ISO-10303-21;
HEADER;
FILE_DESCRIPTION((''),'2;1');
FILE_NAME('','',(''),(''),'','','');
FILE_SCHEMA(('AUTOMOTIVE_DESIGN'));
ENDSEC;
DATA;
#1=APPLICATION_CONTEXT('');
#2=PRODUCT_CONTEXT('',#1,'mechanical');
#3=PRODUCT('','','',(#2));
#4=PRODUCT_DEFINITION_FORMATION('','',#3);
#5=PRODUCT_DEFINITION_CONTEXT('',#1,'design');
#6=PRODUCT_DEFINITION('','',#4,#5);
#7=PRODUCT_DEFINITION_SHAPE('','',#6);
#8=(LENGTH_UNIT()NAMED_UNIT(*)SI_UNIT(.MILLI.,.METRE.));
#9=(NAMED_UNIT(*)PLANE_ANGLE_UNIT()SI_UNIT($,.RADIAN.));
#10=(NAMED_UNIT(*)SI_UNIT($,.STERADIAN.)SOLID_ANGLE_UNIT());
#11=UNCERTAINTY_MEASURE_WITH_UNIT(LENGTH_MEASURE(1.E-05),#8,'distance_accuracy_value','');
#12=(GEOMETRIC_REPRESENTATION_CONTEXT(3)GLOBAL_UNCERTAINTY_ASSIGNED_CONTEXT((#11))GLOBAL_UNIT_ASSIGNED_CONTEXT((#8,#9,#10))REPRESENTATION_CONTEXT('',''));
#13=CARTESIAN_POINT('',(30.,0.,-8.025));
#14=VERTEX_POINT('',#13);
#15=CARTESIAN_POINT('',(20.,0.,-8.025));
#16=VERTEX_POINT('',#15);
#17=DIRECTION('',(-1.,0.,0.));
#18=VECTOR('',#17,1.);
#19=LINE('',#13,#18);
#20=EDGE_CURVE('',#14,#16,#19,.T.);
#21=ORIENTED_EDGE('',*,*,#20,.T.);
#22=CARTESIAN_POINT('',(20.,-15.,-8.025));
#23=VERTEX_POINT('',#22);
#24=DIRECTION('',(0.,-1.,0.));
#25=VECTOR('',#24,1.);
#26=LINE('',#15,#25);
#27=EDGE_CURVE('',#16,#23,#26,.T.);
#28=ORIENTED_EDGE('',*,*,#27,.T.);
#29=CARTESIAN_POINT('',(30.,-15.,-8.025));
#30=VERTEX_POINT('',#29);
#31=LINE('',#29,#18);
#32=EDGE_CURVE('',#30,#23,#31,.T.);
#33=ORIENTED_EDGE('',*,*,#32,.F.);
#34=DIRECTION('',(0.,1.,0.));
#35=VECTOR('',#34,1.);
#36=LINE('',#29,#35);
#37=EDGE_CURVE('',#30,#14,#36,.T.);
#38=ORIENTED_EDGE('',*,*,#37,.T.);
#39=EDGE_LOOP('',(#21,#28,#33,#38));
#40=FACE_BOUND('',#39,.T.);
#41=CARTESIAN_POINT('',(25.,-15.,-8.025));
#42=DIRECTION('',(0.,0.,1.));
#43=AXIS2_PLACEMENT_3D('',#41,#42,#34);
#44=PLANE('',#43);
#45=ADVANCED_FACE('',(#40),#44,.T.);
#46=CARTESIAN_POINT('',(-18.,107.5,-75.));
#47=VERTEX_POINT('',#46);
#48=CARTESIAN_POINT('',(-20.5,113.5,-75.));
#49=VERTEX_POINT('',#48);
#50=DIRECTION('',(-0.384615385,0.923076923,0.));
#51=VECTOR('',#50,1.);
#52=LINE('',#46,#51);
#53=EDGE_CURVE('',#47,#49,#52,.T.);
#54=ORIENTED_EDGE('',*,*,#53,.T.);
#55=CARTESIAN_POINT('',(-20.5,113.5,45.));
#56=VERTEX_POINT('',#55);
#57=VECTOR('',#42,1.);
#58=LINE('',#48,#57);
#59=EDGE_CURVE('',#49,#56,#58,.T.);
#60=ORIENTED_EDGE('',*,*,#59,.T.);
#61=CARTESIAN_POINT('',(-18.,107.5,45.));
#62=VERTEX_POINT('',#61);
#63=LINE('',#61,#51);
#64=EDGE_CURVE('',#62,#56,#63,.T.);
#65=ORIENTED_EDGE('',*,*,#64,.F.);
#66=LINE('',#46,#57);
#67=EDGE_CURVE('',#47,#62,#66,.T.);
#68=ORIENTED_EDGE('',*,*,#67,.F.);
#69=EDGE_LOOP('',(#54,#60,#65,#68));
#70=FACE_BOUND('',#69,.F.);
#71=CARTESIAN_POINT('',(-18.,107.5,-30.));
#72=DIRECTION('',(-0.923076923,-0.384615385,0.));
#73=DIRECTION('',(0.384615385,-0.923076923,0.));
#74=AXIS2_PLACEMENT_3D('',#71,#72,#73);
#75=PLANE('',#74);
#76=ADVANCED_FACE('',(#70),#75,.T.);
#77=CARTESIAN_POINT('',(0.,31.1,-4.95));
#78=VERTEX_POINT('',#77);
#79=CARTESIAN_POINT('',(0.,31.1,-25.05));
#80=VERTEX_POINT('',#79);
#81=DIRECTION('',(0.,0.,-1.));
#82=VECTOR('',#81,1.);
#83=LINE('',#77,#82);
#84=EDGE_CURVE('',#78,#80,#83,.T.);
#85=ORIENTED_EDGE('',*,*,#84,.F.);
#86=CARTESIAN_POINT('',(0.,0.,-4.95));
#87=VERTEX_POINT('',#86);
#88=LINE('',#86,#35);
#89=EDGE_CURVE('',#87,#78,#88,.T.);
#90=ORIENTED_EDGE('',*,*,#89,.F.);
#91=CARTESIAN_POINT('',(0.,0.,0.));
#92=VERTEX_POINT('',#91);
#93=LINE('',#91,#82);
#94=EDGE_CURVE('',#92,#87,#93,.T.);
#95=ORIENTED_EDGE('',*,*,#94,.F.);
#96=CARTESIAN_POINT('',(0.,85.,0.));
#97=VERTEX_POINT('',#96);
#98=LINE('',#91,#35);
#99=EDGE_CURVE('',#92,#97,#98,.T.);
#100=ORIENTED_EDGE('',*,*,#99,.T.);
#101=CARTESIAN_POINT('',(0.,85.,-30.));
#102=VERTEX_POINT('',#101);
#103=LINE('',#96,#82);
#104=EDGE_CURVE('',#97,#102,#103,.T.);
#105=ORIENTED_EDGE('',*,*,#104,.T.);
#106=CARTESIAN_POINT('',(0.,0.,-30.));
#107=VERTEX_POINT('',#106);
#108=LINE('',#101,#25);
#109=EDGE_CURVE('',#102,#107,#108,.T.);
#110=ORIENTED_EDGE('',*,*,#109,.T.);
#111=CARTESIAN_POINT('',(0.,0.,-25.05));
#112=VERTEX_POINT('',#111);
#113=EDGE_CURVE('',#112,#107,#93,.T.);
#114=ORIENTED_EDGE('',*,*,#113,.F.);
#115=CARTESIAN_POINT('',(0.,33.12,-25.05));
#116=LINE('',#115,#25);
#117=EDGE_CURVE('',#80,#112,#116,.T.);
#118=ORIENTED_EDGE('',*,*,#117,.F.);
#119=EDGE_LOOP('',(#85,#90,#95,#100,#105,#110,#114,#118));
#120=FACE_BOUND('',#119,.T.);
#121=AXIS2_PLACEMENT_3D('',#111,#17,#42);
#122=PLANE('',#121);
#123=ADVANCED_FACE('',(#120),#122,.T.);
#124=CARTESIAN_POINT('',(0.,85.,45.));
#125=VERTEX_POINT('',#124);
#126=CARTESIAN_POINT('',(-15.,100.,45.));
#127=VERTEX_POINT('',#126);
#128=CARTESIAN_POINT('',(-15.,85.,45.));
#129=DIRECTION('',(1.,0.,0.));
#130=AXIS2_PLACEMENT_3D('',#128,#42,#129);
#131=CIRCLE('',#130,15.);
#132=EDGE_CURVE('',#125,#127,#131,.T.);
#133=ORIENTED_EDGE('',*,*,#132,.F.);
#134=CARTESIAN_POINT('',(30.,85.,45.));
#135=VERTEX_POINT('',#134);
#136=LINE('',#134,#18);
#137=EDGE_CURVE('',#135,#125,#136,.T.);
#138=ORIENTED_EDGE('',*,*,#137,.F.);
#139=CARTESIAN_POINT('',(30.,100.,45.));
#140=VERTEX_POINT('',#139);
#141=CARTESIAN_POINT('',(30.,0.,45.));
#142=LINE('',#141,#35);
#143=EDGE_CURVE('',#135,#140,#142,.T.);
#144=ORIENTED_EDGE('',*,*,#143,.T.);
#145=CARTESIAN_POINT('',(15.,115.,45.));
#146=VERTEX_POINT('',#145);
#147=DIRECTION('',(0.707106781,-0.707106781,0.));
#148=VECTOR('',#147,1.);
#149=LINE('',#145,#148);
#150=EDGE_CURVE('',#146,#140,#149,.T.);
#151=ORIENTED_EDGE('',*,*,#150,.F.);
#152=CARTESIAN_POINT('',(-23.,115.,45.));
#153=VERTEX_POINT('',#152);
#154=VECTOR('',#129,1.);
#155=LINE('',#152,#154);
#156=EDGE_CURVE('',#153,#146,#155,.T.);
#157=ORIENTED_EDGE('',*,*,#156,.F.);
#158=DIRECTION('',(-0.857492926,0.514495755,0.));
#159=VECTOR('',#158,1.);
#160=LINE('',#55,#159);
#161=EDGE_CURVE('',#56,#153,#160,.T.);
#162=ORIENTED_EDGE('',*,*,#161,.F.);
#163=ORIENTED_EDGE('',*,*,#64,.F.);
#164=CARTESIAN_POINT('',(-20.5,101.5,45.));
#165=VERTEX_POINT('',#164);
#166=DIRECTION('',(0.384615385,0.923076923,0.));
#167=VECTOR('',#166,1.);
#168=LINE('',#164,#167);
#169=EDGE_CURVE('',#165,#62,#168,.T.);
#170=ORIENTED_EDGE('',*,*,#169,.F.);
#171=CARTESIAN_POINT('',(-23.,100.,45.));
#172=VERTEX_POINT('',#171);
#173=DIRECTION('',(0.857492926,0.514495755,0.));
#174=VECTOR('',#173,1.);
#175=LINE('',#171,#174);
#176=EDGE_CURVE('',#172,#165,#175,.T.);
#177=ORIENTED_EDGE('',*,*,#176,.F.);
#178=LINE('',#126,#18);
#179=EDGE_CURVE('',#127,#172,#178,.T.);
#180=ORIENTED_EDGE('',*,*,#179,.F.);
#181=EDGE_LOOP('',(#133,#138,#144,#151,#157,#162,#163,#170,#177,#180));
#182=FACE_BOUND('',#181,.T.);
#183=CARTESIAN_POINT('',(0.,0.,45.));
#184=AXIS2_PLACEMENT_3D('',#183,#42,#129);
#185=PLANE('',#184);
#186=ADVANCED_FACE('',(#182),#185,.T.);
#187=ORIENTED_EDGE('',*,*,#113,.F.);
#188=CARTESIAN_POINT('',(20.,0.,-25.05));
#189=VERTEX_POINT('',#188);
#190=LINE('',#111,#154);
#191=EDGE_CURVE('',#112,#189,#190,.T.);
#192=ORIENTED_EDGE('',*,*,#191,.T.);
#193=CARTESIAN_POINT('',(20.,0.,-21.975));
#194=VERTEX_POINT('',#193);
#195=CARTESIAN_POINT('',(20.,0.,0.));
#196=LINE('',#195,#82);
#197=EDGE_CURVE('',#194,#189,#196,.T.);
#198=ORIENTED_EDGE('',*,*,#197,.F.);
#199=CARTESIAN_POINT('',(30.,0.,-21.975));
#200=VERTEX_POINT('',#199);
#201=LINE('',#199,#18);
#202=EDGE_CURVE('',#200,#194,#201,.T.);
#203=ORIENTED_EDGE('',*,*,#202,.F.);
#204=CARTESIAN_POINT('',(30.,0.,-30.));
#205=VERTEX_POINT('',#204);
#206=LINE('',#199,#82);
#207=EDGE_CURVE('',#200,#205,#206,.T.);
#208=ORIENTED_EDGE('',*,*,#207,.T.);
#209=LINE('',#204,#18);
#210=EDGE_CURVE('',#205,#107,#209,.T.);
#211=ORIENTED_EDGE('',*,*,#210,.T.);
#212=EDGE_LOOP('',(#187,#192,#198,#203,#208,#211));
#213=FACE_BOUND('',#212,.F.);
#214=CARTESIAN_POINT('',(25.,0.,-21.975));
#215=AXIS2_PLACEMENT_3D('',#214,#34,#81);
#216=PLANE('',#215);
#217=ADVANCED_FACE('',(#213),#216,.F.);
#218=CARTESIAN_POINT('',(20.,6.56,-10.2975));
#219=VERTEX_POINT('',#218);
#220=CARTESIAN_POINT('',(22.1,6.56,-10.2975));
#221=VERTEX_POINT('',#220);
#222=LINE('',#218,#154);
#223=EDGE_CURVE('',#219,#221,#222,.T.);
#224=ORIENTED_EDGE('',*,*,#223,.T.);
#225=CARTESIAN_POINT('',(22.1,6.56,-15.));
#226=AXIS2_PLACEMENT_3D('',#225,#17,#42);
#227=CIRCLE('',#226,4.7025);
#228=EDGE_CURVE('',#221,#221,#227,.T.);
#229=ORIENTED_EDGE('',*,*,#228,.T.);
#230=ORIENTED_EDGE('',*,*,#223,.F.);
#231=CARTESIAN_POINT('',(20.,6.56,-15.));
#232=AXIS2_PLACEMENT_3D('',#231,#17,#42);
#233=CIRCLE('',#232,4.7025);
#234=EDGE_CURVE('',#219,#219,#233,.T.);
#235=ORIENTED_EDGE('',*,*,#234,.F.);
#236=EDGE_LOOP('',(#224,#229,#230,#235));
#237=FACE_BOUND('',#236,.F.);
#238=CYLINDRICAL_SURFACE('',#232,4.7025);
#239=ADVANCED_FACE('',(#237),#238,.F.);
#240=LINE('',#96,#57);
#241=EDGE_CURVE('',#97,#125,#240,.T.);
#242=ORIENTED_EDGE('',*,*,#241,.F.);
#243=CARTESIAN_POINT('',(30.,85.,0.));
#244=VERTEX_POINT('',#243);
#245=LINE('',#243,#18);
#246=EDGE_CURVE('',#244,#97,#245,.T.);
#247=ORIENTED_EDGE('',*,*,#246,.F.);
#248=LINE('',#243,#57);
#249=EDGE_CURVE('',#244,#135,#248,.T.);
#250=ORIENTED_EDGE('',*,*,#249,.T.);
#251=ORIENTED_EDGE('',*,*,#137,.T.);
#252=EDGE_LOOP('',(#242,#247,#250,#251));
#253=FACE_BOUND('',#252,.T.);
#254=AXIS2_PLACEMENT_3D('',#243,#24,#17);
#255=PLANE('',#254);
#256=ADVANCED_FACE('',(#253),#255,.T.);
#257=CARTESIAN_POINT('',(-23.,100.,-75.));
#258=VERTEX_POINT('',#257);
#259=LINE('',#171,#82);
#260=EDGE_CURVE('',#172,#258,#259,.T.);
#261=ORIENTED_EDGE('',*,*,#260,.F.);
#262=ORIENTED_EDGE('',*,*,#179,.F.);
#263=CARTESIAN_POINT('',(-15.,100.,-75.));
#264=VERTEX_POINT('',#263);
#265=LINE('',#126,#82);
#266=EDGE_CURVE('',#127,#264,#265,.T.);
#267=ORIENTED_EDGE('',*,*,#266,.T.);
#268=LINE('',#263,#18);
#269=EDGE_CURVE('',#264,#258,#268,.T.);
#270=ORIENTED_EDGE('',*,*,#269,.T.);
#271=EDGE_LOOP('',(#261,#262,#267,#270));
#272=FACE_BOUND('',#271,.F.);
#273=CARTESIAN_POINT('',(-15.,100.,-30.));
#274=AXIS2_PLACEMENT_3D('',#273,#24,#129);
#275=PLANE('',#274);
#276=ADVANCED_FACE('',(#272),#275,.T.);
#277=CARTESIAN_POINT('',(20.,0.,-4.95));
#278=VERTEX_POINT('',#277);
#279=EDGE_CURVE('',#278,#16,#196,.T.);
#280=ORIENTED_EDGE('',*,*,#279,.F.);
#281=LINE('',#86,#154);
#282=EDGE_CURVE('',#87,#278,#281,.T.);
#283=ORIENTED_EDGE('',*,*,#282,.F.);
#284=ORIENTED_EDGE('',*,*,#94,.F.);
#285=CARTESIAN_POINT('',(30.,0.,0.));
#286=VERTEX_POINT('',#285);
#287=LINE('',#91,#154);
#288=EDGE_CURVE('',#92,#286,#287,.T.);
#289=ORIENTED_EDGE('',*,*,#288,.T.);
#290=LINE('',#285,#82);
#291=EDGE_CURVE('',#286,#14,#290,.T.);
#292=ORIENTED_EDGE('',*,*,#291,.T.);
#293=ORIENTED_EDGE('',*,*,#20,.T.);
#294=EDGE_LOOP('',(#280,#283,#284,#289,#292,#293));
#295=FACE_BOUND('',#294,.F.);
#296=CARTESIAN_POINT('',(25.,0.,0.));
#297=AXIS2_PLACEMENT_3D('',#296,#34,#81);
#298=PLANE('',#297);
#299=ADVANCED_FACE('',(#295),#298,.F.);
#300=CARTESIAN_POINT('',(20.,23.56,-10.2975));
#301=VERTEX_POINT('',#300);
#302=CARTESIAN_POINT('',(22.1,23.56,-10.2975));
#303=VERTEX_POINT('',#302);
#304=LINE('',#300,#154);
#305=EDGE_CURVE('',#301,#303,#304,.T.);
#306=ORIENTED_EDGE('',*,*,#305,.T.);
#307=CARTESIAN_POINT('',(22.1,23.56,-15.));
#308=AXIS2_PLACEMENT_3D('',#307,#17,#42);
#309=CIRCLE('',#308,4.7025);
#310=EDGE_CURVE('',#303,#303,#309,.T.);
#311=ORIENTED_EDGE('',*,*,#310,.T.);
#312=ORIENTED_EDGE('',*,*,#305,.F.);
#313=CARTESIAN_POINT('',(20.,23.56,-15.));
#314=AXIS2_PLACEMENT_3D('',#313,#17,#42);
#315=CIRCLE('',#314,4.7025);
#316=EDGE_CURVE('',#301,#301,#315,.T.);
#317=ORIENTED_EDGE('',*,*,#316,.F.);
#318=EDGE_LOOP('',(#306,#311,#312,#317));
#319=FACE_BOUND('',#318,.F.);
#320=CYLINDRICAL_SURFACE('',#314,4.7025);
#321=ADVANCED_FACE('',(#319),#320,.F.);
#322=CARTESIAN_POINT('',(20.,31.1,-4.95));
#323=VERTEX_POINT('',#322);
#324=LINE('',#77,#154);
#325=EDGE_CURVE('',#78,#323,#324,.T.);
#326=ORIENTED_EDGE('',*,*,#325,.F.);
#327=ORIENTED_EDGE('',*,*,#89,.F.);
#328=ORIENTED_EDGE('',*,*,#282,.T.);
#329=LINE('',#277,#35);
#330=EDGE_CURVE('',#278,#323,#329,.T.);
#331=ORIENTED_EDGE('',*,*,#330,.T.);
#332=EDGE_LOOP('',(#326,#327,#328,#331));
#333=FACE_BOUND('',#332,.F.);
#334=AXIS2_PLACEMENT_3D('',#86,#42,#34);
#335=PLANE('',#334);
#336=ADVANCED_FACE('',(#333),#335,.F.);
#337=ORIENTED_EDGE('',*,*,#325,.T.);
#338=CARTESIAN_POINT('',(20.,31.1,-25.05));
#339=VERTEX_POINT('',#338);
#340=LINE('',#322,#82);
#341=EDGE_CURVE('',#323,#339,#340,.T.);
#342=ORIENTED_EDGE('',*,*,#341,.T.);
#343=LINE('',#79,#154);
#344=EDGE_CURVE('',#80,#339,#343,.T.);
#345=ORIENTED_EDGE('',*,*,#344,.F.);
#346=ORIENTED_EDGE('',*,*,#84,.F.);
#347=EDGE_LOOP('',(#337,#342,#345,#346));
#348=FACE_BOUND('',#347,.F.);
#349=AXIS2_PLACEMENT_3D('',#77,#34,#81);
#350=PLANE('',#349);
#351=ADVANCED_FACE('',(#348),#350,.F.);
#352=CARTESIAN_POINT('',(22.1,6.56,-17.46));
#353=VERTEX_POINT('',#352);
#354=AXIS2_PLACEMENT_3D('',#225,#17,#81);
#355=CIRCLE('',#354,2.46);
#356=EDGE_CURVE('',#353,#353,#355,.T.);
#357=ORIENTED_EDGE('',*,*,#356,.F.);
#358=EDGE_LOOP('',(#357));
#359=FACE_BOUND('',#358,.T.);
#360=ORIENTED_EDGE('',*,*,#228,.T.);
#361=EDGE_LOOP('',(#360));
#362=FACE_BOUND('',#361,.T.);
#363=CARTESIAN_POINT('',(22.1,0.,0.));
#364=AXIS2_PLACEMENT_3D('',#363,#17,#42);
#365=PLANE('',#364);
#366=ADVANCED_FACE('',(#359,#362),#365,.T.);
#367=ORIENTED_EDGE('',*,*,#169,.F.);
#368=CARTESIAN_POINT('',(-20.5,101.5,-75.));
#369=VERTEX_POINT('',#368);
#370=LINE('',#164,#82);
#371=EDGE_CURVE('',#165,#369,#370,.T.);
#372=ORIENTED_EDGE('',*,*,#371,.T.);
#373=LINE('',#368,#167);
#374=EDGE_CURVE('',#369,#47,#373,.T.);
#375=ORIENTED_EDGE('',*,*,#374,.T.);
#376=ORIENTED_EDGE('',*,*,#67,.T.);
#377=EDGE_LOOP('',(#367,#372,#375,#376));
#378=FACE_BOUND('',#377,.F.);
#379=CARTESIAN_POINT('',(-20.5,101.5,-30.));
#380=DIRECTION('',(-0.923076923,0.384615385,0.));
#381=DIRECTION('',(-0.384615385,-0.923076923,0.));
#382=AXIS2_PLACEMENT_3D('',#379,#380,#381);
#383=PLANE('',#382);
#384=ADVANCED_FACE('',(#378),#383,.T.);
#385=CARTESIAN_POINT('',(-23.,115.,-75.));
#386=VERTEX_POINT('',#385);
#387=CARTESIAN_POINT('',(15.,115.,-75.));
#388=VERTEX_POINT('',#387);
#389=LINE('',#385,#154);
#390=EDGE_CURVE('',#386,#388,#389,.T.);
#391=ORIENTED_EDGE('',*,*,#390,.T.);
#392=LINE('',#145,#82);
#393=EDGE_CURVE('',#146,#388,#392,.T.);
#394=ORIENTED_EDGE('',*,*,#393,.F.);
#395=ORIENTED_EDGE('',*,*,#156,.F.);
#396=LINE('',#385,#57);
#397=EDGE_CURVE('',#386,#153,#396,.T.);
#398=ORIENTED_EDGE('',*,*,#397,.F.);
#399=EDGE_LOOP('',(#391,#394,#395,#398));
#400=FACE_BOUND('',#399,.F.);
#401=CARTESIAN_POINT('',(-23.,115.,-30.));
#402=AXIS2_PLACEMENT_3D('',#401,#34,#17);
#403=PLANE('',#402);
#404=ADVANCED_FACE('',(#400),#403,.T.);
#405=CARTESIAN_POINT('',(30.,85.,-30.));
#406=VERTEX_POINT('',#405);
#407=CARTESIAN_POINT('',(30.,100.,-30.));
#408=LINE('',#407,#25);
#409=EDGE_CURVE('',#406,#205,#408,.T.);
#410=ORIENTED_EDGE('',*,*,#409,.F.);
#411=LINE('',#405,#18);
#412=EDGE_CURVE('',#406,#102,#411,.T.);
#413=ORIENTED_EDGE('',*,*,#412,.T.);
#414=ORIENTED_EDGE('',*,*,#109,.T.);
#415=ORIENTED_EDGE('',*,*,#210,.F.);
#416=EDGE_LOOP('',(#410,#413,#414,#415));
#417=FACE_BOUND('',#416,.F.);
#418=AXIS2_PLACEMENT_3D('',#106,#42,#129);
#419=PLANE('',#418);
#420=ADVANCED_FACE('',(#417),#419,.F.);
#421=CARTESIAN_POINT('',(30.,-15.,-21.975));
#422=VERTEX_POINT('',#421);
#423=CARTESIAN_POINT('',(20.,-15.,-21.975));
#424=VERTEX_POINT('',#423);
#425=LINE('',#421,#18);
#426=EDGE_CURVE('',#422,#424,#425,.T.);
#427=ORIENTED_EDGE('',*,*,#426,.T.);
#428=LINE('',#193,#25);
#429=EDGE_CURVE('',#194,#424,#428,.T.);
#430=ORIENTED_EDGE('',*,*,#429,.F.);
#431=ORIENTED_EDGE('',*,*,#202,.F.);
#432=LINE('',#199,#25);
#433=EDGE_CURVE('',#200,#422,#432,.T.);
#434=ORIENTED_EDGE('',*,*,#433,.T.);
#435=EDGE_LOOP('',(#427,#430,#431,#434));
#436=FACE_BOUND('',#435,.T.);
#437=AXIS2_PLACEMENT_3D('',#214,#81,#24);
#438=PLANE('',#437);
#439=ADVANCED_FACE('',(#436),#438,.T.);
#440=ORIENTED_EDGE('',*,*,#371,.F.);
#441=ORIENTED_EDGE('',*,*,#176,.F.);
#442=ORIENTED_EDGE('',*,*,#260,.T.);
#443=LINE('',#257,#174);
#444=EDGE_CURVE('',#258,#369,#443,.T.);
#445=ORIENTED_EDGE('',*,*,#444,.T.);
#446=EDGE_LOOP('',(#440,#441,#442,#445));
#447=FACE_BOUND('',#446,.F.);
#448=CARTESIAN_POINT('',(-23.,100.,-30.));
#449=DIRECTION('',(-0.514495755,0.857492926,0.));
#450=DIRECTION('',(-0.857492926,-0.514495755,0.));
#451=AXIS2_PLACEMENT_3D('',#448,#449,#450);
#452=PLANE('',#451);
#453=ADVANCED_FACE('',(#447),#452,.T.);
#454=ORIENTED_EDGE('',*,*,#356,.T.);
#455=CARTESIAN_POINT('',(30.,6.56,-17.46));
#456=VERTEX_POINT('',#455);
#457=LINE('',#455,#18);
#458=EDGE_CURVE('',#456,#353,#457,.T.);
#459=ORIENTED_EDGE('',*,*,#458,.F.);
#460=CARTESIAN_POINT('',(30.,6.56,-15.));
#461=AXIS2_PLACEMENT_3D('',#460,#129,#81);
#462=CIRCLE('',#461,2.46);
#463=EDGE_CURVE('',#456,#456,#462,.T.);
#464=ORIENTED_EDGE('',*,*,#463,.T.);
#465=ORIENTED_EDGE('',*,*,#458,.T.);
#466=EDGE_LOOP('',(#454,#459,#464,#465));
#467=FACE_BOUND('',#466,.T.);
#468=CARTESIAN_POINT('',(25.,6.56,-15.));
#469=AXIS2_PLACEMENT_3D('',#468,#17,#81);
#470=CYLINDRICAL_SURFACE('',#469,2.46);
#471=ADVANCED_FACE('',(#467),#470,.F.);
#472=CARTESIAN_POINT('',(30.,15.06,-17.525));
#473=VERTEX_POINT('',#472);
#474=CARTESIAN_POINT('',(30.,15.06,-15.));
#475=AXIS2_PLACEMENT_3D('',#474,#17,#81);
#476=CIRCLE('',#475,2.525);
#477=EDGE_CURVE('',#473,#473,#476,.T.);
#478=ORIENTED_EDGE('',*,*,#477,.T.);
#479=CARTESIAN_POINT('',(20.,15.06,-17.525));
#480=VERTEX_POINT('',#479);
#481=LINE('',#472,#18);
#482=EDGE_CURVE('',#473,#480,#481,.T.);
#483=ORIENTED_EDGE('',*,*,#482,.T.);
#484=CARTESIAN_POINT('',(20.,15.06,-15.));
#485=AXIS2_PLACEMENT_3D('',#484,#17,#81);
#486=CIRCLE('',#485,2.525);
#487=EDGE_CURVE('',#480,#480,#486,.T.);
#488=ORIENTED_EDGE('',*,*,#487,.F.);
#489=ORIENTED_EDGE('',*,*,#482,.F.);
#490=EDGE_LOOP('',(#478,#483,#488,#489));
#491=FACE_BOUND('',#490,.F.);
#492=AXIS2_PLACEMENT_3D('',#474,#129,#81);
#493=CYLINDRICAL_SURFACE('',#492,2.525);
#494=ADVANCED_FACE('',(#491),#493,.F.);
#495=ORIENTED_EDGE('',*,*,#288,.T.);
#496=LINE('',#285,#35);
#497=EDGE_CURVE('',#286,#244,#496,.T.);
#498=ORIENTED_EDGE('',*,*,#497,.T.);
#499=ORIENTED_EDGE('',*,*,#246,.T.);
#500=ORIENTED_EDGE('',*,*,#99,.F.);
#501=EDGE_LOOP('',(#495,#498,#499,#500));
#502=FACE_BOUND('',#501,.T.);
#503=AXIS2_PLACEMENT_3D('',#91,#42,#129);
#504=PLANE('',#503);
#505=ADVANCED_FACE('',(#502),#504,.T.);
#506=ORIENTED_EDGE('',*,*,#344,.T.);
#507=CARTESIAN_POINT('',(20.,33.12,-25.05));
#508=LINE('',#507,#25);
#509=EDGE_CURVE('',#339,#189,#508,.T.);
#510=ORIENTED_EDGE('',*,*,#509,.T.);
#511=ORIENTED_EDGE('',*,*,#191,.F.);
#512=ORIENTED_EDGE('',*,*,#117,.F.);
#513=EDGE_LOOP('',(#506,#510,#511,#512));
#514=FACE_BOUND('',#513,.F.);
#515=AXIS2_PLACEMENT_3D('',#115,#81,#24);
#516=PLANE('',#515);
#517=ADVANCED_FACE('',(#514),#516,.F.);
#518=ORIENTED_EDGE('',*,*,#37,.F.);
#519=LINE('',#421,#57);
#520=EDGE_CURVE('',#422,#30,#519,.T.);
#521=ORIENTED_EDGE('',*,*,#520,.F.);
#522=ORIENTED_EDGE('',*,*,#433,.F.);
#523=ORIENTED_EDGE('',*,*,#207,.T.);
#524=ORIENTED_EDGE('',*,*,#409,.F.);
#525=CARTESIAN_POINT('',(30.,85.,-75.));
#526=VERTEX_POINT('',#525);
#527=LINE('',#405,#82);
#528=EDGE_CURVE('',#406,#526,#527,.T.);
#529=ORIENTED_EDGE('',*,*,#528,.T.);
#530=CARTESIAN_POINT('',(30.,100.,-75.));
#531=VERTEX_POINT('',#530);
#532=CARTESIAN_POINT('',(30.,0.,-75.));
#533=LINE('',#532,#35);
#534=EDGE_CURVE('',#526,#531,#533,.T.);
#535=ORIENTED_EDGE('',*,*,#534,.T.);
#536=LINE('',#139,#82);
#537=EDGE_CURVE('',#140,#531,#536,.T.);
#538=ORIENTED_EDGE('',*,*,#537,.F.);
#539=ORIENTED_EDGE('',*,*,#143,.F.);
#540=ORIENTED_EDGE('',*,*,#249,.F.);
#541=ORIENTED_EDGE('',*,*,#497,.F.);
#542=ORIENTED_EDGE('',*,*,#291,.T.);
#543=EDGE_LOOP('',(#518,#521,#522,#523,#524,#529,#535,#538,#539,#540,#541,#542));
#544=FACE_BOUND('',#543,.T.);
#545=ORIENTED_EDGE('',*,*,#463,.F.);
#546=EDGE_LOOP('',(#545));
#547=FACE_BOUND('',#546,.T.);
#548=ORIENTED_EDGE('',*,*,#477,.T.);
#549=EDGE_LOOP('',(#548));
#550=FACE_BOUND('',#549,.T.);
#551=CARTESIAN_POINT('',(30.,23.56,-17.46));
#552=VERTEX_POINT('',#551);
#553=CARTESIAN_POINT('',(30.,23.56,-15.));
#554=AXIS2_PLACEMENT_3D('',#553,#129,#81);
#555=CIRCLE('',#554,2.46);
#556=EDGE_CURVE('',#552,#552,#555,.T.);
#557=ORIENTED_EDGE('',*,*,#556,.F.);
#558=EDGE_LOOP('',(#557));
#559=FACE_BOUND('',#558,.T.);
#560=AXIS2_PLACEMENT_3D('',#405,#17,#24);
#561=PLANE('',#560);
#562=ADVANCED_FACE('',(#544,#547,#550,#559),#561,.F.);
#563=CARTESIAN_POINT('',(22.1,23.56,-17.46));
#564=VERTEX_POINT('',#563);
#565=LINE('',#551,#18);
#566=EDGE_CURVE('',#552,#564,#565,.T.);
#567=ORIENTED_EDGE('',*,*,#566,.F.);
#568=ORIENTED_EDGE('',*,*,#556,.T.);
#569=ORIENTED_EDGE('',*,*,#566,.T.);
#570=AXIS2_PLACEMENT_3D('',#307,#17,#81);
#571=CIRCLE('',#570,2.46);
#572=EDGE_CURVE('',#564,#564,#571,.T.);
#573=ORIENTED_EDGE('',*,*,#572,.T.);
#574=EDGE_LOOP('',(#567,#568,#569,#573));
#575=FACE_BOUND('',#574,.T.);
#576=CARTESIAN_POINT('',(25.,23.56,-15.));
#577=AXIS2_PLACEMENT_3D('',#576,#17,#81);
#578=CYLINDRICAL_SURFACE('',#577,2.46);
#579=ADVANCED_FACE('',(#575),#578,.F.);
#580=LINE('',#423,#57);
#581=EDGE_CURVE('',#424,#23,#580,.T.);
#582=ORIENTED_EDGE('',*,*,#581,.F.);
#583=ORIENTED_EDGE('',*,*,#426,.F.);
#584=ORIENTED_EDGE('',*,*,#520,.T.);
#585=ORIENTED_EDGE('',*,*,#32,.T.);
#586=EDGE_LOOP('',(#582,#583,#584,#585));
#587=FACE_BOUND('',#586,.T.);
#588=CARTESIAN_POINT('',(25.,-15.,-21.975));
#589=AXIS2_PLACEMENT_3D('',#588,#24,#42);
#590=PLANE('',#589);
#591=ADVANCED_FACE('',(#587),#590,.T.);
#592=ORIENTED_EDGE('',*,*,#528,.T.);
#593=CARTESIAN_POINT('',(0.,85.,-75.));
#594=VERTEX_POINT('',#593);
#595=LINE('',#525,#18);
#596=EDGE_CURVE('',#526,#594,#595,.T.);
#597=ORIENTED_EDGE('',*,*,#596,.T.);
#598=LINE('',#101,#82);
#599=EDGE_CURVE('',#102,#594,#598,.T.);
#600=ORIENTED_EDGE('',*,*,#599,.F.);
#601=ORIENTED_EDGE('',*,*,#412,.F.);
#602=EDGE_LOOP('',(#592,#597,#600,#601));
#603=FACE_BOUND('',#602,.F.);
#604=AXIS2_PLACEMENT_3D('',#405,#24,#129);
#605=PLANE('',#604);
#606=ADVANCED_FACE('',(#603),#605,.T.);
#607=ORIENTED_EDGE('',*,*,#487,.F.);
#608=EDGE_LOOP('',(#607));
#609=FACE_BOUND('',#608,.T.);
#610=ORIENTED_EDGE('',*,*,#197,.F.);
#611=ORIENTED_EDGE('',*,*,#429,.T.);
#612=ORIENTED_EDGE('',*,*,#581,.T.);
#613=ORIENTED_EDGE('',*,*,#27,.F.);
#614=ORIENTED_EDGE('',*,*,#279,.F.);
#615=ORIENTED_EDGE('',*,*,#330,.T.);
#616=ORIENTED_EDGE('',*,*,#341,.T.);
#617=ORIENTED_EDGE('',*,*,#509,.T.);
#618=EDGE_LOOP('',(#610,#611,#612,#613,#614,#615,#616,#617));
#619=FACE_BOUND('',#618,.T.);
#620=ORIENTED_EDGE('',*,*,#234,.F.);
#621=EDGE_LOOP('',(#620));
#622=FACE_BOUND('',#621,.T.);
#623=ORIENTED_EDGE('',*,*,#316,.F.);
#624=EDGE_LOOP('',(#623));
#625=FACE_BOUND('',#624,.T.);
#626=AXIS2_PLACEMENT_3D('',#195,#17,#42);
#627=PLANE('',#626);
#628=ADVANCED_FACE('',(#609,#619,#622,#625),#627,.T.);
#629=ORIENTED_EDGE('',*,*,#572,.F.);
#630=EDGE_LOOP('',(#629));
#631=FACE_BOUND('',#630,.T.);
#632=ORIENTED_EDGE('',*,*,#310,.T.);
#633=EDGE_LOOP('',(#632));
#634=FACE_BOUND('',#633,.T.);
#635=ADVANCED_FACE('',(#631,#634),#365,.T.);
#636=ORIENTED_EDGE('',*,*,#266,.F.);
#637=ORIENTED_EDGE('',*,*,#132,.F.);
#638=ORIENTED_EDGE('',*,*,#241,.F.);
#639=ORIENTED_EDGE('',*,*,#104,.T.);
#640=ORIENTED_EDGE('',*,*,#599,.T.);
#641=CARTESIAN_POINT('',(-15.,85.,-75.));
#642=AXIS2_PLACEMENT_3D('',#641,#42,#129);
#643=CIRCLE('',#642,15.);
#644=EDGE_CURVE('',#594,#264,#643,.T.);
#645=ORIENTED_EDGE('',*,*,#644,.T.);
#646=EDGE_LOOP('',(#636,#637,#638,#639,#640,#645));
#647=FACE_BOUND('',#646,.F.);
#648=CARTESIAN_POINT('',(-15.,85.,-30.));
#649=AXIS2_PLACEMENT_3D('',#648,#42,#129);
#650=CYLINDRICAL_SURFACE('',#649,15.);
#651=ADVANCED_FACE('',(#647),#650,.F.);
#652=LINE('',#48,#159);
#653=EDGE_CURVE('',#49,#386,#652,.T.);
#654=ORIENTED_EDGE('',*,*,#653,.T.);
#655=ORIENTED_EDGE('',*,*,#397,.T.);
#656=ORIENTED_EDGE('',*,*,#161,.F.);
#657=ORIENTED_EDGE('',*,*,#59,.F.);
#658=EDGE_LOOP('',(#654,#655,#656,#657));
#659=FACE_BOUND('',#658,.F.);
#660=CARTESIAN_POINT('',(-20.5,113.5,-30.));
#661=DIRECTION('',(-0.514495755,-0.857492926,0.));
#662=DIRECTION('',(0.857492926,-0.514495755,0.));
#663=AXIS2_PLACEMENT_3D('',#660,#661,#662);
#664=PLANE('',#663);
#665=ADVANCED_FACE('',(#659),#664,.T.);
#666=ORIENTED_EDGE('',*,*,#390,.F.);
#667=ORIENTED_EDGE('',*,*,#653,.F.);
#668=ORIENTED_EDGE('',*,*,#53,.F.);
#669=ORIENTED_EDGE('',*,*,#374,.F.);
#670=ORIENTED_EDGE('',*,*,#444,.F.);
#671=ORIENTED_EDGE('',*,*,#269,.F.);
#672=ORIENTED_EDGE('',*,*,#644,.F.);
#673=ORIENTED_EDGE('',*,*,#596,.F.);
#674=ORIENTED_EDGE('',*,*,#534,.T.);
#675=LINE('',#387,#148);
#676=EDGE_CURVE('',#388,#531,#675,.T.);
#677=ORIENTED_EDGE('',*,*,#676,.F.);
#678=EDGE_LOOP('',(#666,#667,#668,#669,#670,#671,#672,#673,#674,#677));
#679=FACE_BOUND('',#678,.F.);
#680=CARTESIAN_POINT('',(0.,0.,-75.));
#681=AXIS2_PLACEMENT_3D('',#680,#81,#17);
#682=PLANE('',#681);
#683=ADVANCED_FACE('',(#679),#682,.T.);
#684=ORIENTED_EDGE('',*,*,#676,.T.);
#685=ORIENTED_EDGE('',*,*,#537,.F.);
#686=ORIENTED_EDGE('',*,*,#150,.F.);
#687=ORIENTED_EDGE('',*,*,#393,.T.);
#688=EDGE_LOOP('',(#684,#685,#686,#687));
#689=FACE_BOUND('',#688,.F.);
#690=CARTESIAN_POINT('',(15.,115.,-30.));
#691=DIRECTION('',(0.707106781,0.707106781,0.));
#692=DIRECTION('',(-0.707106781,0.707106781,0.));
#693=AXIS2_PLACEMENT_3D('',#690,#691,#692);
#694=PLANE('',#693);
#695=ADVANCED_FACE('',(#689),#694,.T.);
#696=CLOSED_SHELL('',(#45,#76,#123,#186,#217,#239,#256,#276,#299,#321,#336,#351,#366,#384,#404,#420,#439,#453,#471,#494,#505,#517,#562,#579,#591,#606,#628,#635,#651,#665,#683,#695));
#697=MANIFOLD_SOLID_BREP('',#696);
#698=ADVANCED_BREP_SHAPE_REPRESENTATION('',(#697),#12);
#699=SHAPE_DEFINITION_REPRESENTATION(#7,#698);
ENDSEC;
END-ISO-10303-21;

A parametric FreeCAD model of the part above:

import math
import FreeCAD as App
import Part
import Sketcher

V = App.Vector
Q = App.Units.Quantity


def add_polygon(sketch, points):
    """Adds a closed chain of lines whose ends are joined by coincident constraints."""
    first, n = sketch.GeometryCount, len(points)
    for a, b in zip(points, points[1:] + points[:1]):
        sketch.addGeometry(Part.LineSegment(App.Vector(*a, 0), App.Vector(*b, 0)), False)
    for i in range(n):
        sketch.addConstraint(Sketcher.Constraint("Coincident", first + i, 2, first + (i + 1) % n, 1))

doc = App.newDocument("Part")
params = doc.addObject("Spreadsheet::Sheet", "Params")
for row, (alias, value) in enumerate([
    ("sketch1_width", "25 mm"),
    ("sketch1_height", "40 mm"),
    ("pad1_length", "30 mm"),
    ("sketch2_diameter", "4.92 mm"),
    ("pocket1_length", "30 mm"),
    ("sketch3_height", "20.1 mm"),
    ("sketch3_width", "33.12 mm"),
    ("pocket2_length", "20 mm"),
    ("sketch4_height", "13.95 mm"),
    ("sketch4_width", "5 mm"),
    ("pad2_length", "15 mm"),
    ("sketch5_diameter", "4.92 mm"),
    ("pocket3_length", "2.1 mm"),
    ("sketch6_diameter", "4.92 mm"),
    ("pocket4_length", "10 mm"),
    ("sketch7_diameter", "4.92 mm"),
    ("pocket5_length", "2.1 mm"),
    ("sketch8_diameter", "4.92 mm"),
    ("sketch8_width", "40 mm"),
    ("sketch8_width2", "15 mm"),
    ("sketch8_height", "30 mm"),
    ("sketch8_height2", "13.95 mm"),
    ("pad3_length", "5 mm"),
    ("sketch9_width", "30 mm"),
    ("pad4_length", "30 mm"),
    ("sketch10_diameter", "5.05 mm"),
    ("pocket6_length", "30 mm"),
    ("sketch11_radius", "15 mm"),
    ("sketch11_width", "30 mm"),
    ("sketch11_width2", "38 mm"),
    ("sketch11_length", "6.5 mm"),
    ("pad5_length", "30 mm"),
    ("sketch12_width", "2.02 mm"),
    ("sketch12_height", "20.1 mm"),
    ("pad6_length", "20 mm"),
    ("sketch13_radius", "15 mm"),
    ("sketch13_width", "38 mm"),
    ("sketch13_width2", "8 mm"),
    ("sketch13_width3", "30 mm"),
    ("sketch13_height", "15 mm"),
    ("pad7_length", "45 mm"),
], start=1):
    params.set(f"A{row}", alias)
    params.set(f"B{row}", "=" + value)
    params.setAlias(f"B{row}", alias)

body = doc.addObject("PartDesign::Body", "Body")

# Sketch on XY plane
sketch1 = body.newObject("Sketcher::SketchObject", "Sketch")
sketch1.AttachmentSupport = (doc.getObject("XY_Plane"), [""])
sketch1.MapMode = "FlatFace"
add_polygon(sketch1, [(0, 40), (0, 0), (25, 0), (25, 40)])  # lines 0-3
sketch1.addConstraint(Sketcher.Constraint("Vertical", 0))
sketch1.addConstraint(Sketcher.Constraint("Horizontal", 1))
sketch1.addConstraint(Sketcher.Constraint("Vertical", 2))
sketch1.addConstraint(Sketcher.Constraint("Horizontal", 3))
sketch1.addConstraint(Sketcher.Constraint("Coincident", 0, 2, -1, 1))
sketch1.addConstraint(Sketcher.Constraint("DistanceX", 1, 1, 1, 2, Q("25 mm")))
sketch1.addConstraint(Sketcher.Constraint("DistanceY", 0, 2, 0, 1, Q("40 mm")))
sketch1.setExpression("Constraints[9]", "Params.sketch1_width")
sketch1.setExpression("Constraints[10]", "Params.sketch1_height")
pad1 = body.newObject("PartDesign::Pad", "Pad")
pad1.Profile = sketch1
pad1.setExpression("Length", "Params.pad1_length")
pad1.Reversed = True

# Sketch on YZ plane
sketch2 = body.newObject("Sketcher::SketchObject", "Sketch001")
sketch2.AttachmentSupport = (doc.getObject("YZ_Plane"), [""])
sketch2.MapMode = "FlatFace"
sketch2.AttachmentOffset = App.Placement(V(0, 0, 25), App.Rotation())
sketch2.addGeometry(Part.Circle(V(6.56, -15, 0), V(0, 0, 1), 2.46), False)
sketch2.addConstraint(Sketcher.Constraint("Diameter", 0, Q("4.92 mm")))
sketch2.addConstraint(Sketcher.Constraint("DistanceY", 0, 3, -1, 1, Q("15 mm")))
sketch2.addConstraint(Sketcher.Constraint("DistanceX", -1, 1, 0, 3, Q("6.56 mm")))
sketch2.setExpression("Constraints[0]", "Params.sketch2_diameter")
pocket1 = body.newObject("PartDesign::Pocket", "Pocket")
pocket1.Profile = sketch2
pocket1.setExpression("Length", "Params.pocket1_length")

# Sketch on YZ plane
sketch3 = body.newObject("Sketcher::SketchObject", "Sketch002")
sketch3.AttachmentSupport = (doc.getObject("YZ_Plane"), [""])
sketch3.MapMode = "FlatFace"
add_polygon(sketch3, [(0, -25.05), (0, -4.95), (33.12, -4.95), (33.12, -25.05)])  # lines 0-3
sketch3.addConstraint(Sketcher.Constraint("Vertical", 0))
sketch3.addConstraint(Sketcher.Constraint("Horizontal", 1))
sketch3.addConstraint(Sketcher.Constraint("Vertical", 2))
sketch3.addConstraint(Sketcher.Constraint("Horizontal", 3))
sketch3.addConstraint(Sketcher.Constraint("PointOnObject", 0, 2, -2))
sketch3.addConstraint(Sketcher.Constraint("DistanceY", 0, 1, 0, 2, Q("20.1 mm")))
sketch3.addConstraint(Sketcher.Constraint("DistanceX", 1, 1, 1, 2, Q("33.12 mm")))
sketch3.addConstraint(Sketcher.Constraint("DistanceY", 0, 2, -1, 1, Q("4.95 mm")))
sketch3.setExpression("Constraints[9]", "Params.sketch3_height")
sketch3.setExpression("Constraints[10]", "Params.sketch3_width")
pocket2 = body.newObject("PartDesign::Pocket", "Pocket001")
pocket2.Profile = sketch3
pocket2.setExpression("Length", "Params.pocket2_length")
pocket2.Reversed = True

# Sketch on XZ plane
sketch4 = body.newObject("Sketcher::SketchObject", "Sketch003")
sketch4.AttachmentSupport = (doc.getObject("XZ_Plane"), [""])
sketch4.MapMode = "FlatFace"
add_polygon(sketch4, [(25, -8.025), (20, -8.025), (20, -21.975), (25, -21.975)])  # lines 0-3
sketch4.addConstraint(Sketcher.Constraint("Horizontal", 0))
sketch4.addConstraint(Sketcher.Constraint("Vertical", 1))
sketch4.addConstraint(Sketcher.Constraint("Horizontal", 2))
sketch4.addConstraint(Sketcher.Constraint("Vertical", 3))
sketch4.addConstraint(Sketcher.Constraint("DistanceY", 1, 2, 1, 1, Q("13.95 mm")))
sketch4.addConstraint(Sketcher.Constraint("DistanceX", 0, 2, 0, 1, Q("5 mm")))
sketch4.addConstraint(Sketcher.Constraint("DistanceX", -1, 1, 0, 2, Q("20 mm")))
sketch4.addConstraint(Sketcher.Constraint("DistanceY", 0, 2, -1, 1, Q("8.025 mm")))
sketch4.setExpression("Constraints[8]", "Params.sketch4_height")
sketch4.setExpression("Constraints[9]", "Params.sketch4_width")
pad2 = body.newObject("PartDesign::Pad", "Pad001")
pad2.Profile = sketch4
pad2.setExpression("Length", "Params.pad2_length")

# Sketch on YZ plane
sketch5 = body.newObject("Sketcher::SketchObject", "Sketch004")
sketch5.AttachmentSupport = (doc.getObject("YZ_Plane"), [""])
sketch5.MapMode = "FlatFace"
sketch5.AttachmentOffset = App.Placement(V(0, 0, 20), App.Rotation())
sketch5.addGeometry(Part.Circle(V(6.56, -15, 0), V(0, 0, 1), 4.7025), False)
sketch5.addGeometry(Part.Circle(V(6.56, -15, 0), V(0, 0, 1), 2.46), False)
sketch5.addConstraint(Sketcher.Constraint("Coincident", 1, 3, 0, 3))
sketch5.addConstraint(Sketcher.Constraint("Diameter", 0, Q("9.405 mm")))
sketch5.addConstraint(Sketcher.Constraint("Diameter", 1, Q("4.92 mm")))
sketch5.addConstraint(Sketcher.Constraint("DistanceY", 0, 3, -1, 1, Q("15 mm")))
sketch5.addConstraint(Sketcher.Constraint("DistanceX", -1, 1, 0, 3, Q("6.56 mm")))
sketch5.setExpression("Constraints[2]", "Params.sketch5_diameter")
pocket3 = body.newObject("PartDesign::Pocket", "Pocket002")
pocket3.Profile = sketch5
pocket3.setExpression("Length", "Params.pocket3_length")
pocket3.Reversed = True

# Sketch on YZ plane
sketch6 = body.newObject("Sketcher::SketchObject", "Sketch005")
sketch6.AttachmentSupport = (doc.getObject("YZ_Plane"), [""])
sketch6.MapMode = "FlatFace"
sketch6.AttachmentOffset = App.Placement(V(0, 0, 25), App.Rotation())
sketch6.addGeometry(Part.Circle(V(23.56, -15, 0), V(0, 0, 1), 2.46), False)
sketch6.addConstraint(Sketcher.Constraint("Diameter", 0, Q("4.92 mm")))
sketch6.addConstraint(Sketcher.Constraint("DistanceY", 0, 3, -1, 1, Q("15 mm")))
sketch6.addConstraint(Sketcher.Constraint("DistanceX", -1, 1, 0, 3, Q("23.56 mm")))
sketch6.setExpression("Constraints[0]", "Params.sketch6_diameter")
pocket4 = body.newObject("PartDesign::Pocket", "Pocket003")
pocket4.Profile = sketch6
pocket4.setExpression("Length", "Params.pocket4_length")

# Sketch on YZ plane
sketch7 = body.newObject("Sketcher::SketchObject", "Sketch006")
sketch7.AttachmentSupport = (doc.getObject("YZ_Plane"), [""])
sketch7.MapMode = "FlatFace"
sketch7.AttachmentOffset = App.Placement(V(0, 0, 20), App.Rotation())
sketch7.addGeometry(Part.Circle(V(23.56, -15, 0), V(0, 0, 1), 4.7025), False)
sketch7.addGeometry(Part.Circle(V(23.56, -15, 0), V(0, 0, 1), 2.46), False)
sketch7.addConstraint(Sketcher.Constraint("Coincident", 1, 3, 0, 3))
sketch7.addConstraint(Sketcher.Constraint("Diameter", 0, Q("9.405 mm")))
sketch7.addConstraint(Sketcher.Constraint("Diameter", 1, Q("4.92 mm")))
sketch7.addConstraint(Sketcher.Constraint("DistanceY", 0, 3, -1, 1, Q("15 mm")))
sketch7.addConstraint(Sketcher.Constraint("DistanceX", -1, 1, 0, 3, Q("23.56 mm")))
sketch7.setExpression("Constraints[2]", "Params.sketch7_diameter")
pocket5 = body.newObject("PartDesign::Pocket", "Pocket004")
pocket5.Profile = sketch7
pocket5.setExpression("Length", "Params.pocket5_length")
pocket5.Reversed = True

# Sketch on YZ plane
sketch8 = body.newObject("Sketcher::SketchObject", "Sketch007")
sketch8.AttachmentSupport = (doc.getObject("YZ_Plane"), [""])
sketch8.MapMode = "FlatFace"
sketch8.AttachmentOffset = App.Placement(V(0, 0, 25), App.Rotation())
add_polygon(sketch8, [(0, -30), (40, -30), (40, 0), (0, 0), (0, -8.025), (-15, -8.025), (-15, -21.975), (0, -21.975)])  # lines 0-7
sketch8.addGeometry(Part.Circle(V(6.56, -15, 0), V(0, 0, 1), 2.46), False)  # 8
sketch8.addGeometry(Part.Circle(V(23.56, -15, 0), V(0, 0, 1), 2.46), False)  # 9
sketch8.addConstraint(Sketcher.Constraint("Horizontal", 0))
sketch8.addConstraint(Sketcher.Constraint("Vertical", 1))
sketch8.addConstraint(Sketcher.Constraint("Horizontal", 2))
sketch8.addConstraint(Sketcher.Constraint("Vertical", 3))
sketch8.addConstraint(Sketcher.Constraint("Horizontal", 4))
sketch8.addConstraint(Sketcher.Constraint("Vertical", 5))
sketch8.addConstraint(Sketcher.Constraint("Horizontal", 6))
sketch8.addConstraint(Sketcher.Constraint("Vertical", 7))
sketch8.addConstraint(Sketcher.Constraint("Coincident", 2, 2, -1, 1))
sketch8.addConstraint(Sketcher.Constraint("Equal", 8, 9))
sketch8.addConstraint(Sketcher.Constraint("PointOnObject", 6, 2, -2))
sketch8.addConstraint(Sketcher.Constraint("Horizontal", 8, 3, 9, 3))
sketch8.addConstraint(Sketcher.Constraint("Equal", 3, 7))
sketch8.addConstraint(Sketcher.Constraint("Diameter", 8, Q("4.92 mm")))
sketch8.addConstraint(Sketcher.Constraint("DistanceX", 0, 1, 0, 2, Q("40 mm")))
sketch8.addConstraint(Sketcher.Constraint("DistanceX", 4, 2, 4, 1, Q("15 mm")))
sketch8.addConstraint(Sketcher.Constraint("DistanceY", 1, 1, 1, 2, Q("30 mm")))
sketch8.addConstraint(Sketcher.Constraint("DistanceY", 8, 3, -1, 1, Q("15 mm")))
sketch8.addConstraint(Sketcher.Constraint("DistanceX", 8, 3, 9, 3, Q("17 mm")))
sketch8.addConstraint(Sketcher.Constraint("DistanceY", 5, 2, 5, 1, Q("13.95 mm")))
sketch8.addConstraint(Sketcher.Constraint("DistanceX", -1, 1, 8, 3, Q("6.56 mm")))
sketch8.setExpression("Constraints[21]", "Params.sketch8_diameter")
sketch8.setExpression("Constraints[22]", "Params.sketch8_width")
sketch8.setExpression("Constraints[23]", "Params.sketch8_width2")
sketch8.setExpression("Constraints[24]", "Params.sketch8_height")
sketch8.setExpression("Constraints[27]", "Params.sketch8_height2")
pad3 = body.newObject("PartDesign::Pad", "Pad002")
pad3.Profile = sketch8
pad3.setExpression("Length", "Params.pad3_length")

# Sketch on XZ plane
sketch9 = body.newObject("Sketcher::SketchObject", "Sketch008")
sketch9.AttachmentSupport = (doc.getObject("XZ_Plane"), [""])
sketch9.MapMode = "FlatFace"
sketch9.AttachmentOffset = App.Placement(V(0, 0, -40), App.Rotation())
add_polygon(sketch9, [(30, -30), (0, -30), (0, 0), (30, 0)])  # lines 0-3
sketch9.addConstraint(Sketcher.Constraint("Horizontal", 0))
sketch9.addConstraint(Sketcher.Constraint("Vertical", 1))
sketch9.addConstraint(Sketcher.Constraint("Horizontal", 2))
sketch9.addConstraint(Sketcher.Constraint("Vertical", 3))
sketch9.addConstraint(Sketcher.Constraint("Coincident", 1, 2, -1, 1))
sketch9.addConstraint(Sketcher.Constraint("Equal", 2, 1))
sketch9.addConstraint(Sketcher.Constraint("DistanceX", 0, 2, 0, 1, Q("30 mm")))
sketch9.setExpression("Constraints[10]", "Params.sketch9_width")
pad4 = body.newObject("PartDesign::Pad", "Pad003")
pad4.Profile = sketch9
pad4.setExpression("Length", "Params.pad4_length")
pad4.Reversed = True

# Sketch on YZ plane
sketch10 = body.newObject("Sketcher::SketchObject", "Sketch009")
sketch10.AttachmentSupport = (doc.getObject("YZ_Plane"), [""])
sketch10.MapMode = "FlatFace"
sketch10.AttachmentOffset = App.Placement(V(0, 0, 30), App.Rotation())
sketch10.addGeometry(Part.Circle(V(15.06, -15, 0), V(0, 0, 1), 2.525), False)
sketch10.addConstraint(Sketcher.Constraint("Diameter", 0, Q("5.05 mm")))
sketch10.addConstraint(Sketcher.Constraint("DistanceY", 0, 3, -1, 1, Q("15 mm")))
sketch10.addConstraint(Sketcher.Constraint("DistanceX", -1, 1, 0, 3, Q("15.06 mm")))
sketch10.setExpression("Constraints[0]", "Params.sketch10_diameter")
pocket6 = body.newObject("PartDesign::Pocket", "Pocket005")
pocket6.Profile = sketch10
pocket6.setExpression("Length", "Params.pocket6_length")

# Sketch on XY plane
sketch11 = body.newObject("Sketcher::SketchObject", "Sketch010")
sketch11.AttachmentSupport = (doc.getObject("XY_Plane"), [""])
sketch11.MapMode = "FlatFace"
sketch11.addGeometry(Part.LineSegment(V(0, 70, 0), V(30, 70, 0)), False)
sketch11.addGeometry(Part.LineSegment(V(30, 70, 0), V(30, 100, 0)), False)
sketch11.addGeometry(Part.LineSegment(V(30, 100, 0), V(15, 115, 0)), False)
sketch11.addGeometry(Part.LineSegment(V(15, 115, 0), V(-23, 115, 0)), False)
sketch11.addGeometry(Part.LineSegment(V(-23, 115, 0), V(-20.5, 113.5, 0)), False)
sketch11.addGeometry(Part.LineSegment(V(-20.5, 113.5, 0), V(-18, 107.5, 0)), False)
sketch11.addGeometry(Part.LineSegment(V(-18, 107.5, 0), V(-20.5, 101.5, 0)), False)
sketch11.addGeometry(Part.LineSegment(V(-20.5, 101.5, 0), V(-23, 100, 0)), False)
sketch11.addGeometry(Part.LineSegment(V(-23, 100, 0), V(-15, 100, 0)), False)
sketch11.addGeometry(Part.ArcOfCircle(Part.Circle(V(-15, 85, 0), V(0, 0, 1), 15), math.radians(0), math.radians(90)), False)
sketch11.addGeometry(Part.LineSegment(V(0, 85, 0), V(0, 70, 0)), False)
sketch11.addConstraint(Sketcher.Constraint("Coincident", 0, 2, 1, 1))
sketch11.addConstraint(Sketcher.Constraint("Coincident", 1, 2, 2, 1))
sketch11.addConstraint(Sketcher.Constraint("Coincident", 2, 2, 3, 1))
sketch11.addConstraint(Sketcher.Constraint("Coincident", 3, 2, 4, 1))
sketch11.addConstraint(Sketcher.Constraint("Coincident", 4, 2, 5, 1))
sketch11.addConstraint(Sketcher.Constraint("Coincident", 5, 2, 6, 1))
sketch11.addConstraint(Sketcher.Constraint("Coincident", 6, 2, 7, 1))
sketch11.addConstraint(Sketcher.Constraint("Coincident", 7, 2, 8, 1))
sketch11.addConstraint(Sketcher.Constraint("Tangent", 8, 2, 9, 2))
sketch11.addConstraint(Sketcher.Constraint("Tangent", 9, 1, 10, 1))
sketch11.addConstraint(Sketcher.Constraint("Coincident", 10, 2, 0, 1))
sketch11.addConstraint(Sketcher.Constraint("Horizontal", 0))
sketch11.addConstraint(Sketcher.Constraint("Vertical", 1))
sketch11.addConstraint(Sketcher.Constraint("Horizontal", 3))
sketch11.addConstraint(Sketcher.Constraint("Horizontal", 8))
sketch11.addConstraint(Sketcher.Constraint("Vertical", 10))
sketch11.addConstraint(Sketcher.Constraint("PointOnObject", 9, 1, -2))
sketch11.addConstraint(Sketcher.Constraint("Horizontal", 1, 2, 7, 2))
sketch11.addConstraint(Sketcher.Constraint("Vertical", 4, 2, 6, 2))
sketch11.addConstraint(Sketcher.Constraint("Vertical", 3, 2, 7, 2))
sketch11.addConstraint(Sketcher.Constraint("Equal", 0, 1))
sketch11.addConstraint(Sketcher.Constraint("Equal", 5, 6))
sketch11.addConstraint(Sketcher.Constraint("Equal", 4, 7))
sketch11.addConstraint(Sketcher.Constraint("Radius", 9, Q("15 mm")))
sketch11.addConstraint(Sketcher.Constraint("DistanceX", 0, 1, 0, 2, Q("30 mm")))
sketch11.addConstraint(Sketcher.Constraint("DistanceX", -1, 1, 2, 2, Q("15 mm")))
sketch11.addConstraint(Sketcher.Constraint("DistanceY", 1, 2, 2, 2, Q("15 mm")))
sketch11.addConstraint(Sketcher.Constraint("DistanceX", 3, 2, 3, 1, Q("38 mm")))
sketch11.addConstraint(Sketcher.Constraint("DistanceY", -1, 1, 9, 3, Q("85 mm")))
sketch11.addConstraint(Sketcher.Constraint("DistanceX", 5, 2, -1, 1, Q("18 mm")))
sketch11.addConstraint(Sketcher.Constraint("DistanceY", 5, 2, 4, 2, Q("6 mm")))
sketch11.addConstraint(Sketcher.Constraint("Distance", 5, Q("6.5 mm")))
sketch11.setExpression("Constraints[23]", "Params.sketch11_radius")
sketch11.setExpression("Constraints[24]", "Params.sketch11_width")
sketch11.setExpression("Constraints[27]", "Params.sketch11_width2")
sketch11.setExpression("Constraints[31]", "Params.sketch11_length")
pad5 = body.newObject("PartDesign::Pad", "Pad004")
pad5.Profile = sketch11
pad5.setExpression("Length", "Params.pad5_length")
pad5.Reversed = True

# Sketch on YZ plane
sketch12 = body.newObject("Sketcher::SketchObject", "Sketch011")
sketch12.AttachmentSupport = (doc.getObject("YZ_Plane"), [""])
sketch12.MapMode = "FlatFace"
add_polygon(sketch12, [(33.12, -4.95), (33.12, -25.05), (31.1, -25.05), (31.1, -4.95)])  # lines 0-3
sketch12.addConstraint(Sketcher.Constraint("Vertical", 0))
sketch12.addConstraint(Sketcher.Constraint("Horizontal", 1))
sketch12.addConstraint(Sketcher.Constraint("Vertical", 2))
sketch12.addConstraint(Sketcher.Constraint("Horizontal", 3))
sketch12.addConstraint(Sketcher.Constraint("DistanceX", 1, 2, 1, 1, Q("2.02 mm")))
sketch12.addConstraint(Sketcher.Constraint("DistanceY", 0, 2, 0, 1, Q("20.1 mm")))
sketch12.addConstraint(Sketcher.Constraint("DistanceX", -1, 1, 1, 2, Q("31.1 mm")))
sketch12.addConstraint(Sketcher.Constraint("DistanceY", 0, 2, -1, 1, Q("25.05 mm")))
sketch12.setExpression("Constraints[8]", "Params.sketch12_width")
sketch12.setExpression("Constraints[9]", "Params.sketch12_height")
pad6 = body.newObject("PartDesign::Pad", "Pad005")
pad6.Profile = sketch12
pad6.setExpression("Length", "Params.pad6_length")

# Sketch on XY plane
sketch13 = body.newObject("Sketcher::SketchObject", "Sketch012")
sketch13.AttachmentSupport = (doc.getObject("XY_Plane"), [""])
sketch13.MapMode = "FlatFace"
sketch13.addGeometry(Part.LineSegment(V(15, 115, 0), V(-23, 115, 0)), False)
sketch13.addGeometry(Part.LineSegment(V(-23, 115, 0), V(-20.5, 113.5, 0)), False)
sketch13.addGeometry(Part.LineSegment(V(-20.5, 113.5, 0), V(-18, 107.5, 0)), False)
sketch13.addGeometry(Part.LineSegment(V(-18, 107.5, 0), V(-20.5, 101.5, 0)), False)
sketch13.addGeometry(Part.LineSegment(V(-20.5, 101.5, 0), V(-23, 100, 0)), False)
sketch13.addGeometry(Part.LineSegment(V(-23, 100, 0), V(-15, 100, 0)), False)
sketch13.addGeometry(Part.ArcOfCircle(Part.Circle(V(-15, 85, 0), V(0, 0, 1), 15), math.radians(0), math.radians(90)), False)
sketch13.addGeometry(Part.LineSegment(V(0, 85, 0), V(30, 85, 0)), False)
sketch13.addGeometry(Part.LineSegment(V(30, 85, 0), V(30, 100, 0)), False)
sketch13.addGeometry(Part.LineSegment(V(30, 100, 0), V(15, 115, 0)), False)
sketch13.addConstraint(Sketcher.Constraint("Coincident", 0, 2, 1, 1))
sketch13.addConstraint(Sketcher.Constraint("Coincident", 1, 2, 2, 1))
sketch13.addConstraint(Sketcher.Constraint("Coincident", 2, 2, 3, 1))
sketch13.addConstraint(Sketcher.Constraint("Coincident", 3, 2, 4, 1))
sketch13.addConstraint(Sketcher.Constraint("Coincident", 4, 2, 5, 1))
sketch13.addConstraint(Sketcher.Constraint("Tangent", 5, 2, 6, 2))
sketch13.addConstraint(Sketcher.Constraint("Coincident", 6, 1, 7, 1))
sketch13.addConstraint(Sketcher.Constraint("Coincident", 7, 2, 8, 1))
sketch13.addConstraint(Sketcher.Constraint("Coincident", 8, 2, 9, 1))
sketch13.addConstraint(Sketcher.Constraint("Coincident", 9, 2, 0, 1))
sketch13.addConstraint(Sketcher.Constraint("Horizontal", 0))
sketch13.addConstraint(Sketcher.Constraint("Horizontal", 5))
sketch13.addConstraint(Sketcher.Constraint("Horizontal", 7))
sketch13.addConstraint(Sketcher.Constraint("Vertical", 8))
sketch13.addConstraint(Sketcher.Constraint("PointOnObject", 6, 1, -2))
sketch13.addConstraint(Sketcher.Constraint("Horizontal", 5, 2, 8, 2))
sketch13.addConstraint(Sketcher.Constraint("Vertical", 1, 2, 3, 2))
sketch13.addConstraint(Sketcher.Constraint("Vertical", 0, 2, 4, 2))
sketch13.addConstraint(Sketcher.Constraint("Equal", 2, 3))
sketch13.addConstraint(Sketcher.Constraint("Equal", 1, 4))
sketch13.addConstraint(Sketcher.Constraint("Radius", 6, Q("15 mm")))
sketch13.addConstraint(Sketcher.Constraint("DistanceX", 0, 2, 0, 1, Q("38 mm")))
sketch13.addConstraint(Sketcher.Constraint("DistanceX", 5, 1, 5, 2, Q("8 mm")))
sketch13.addConstraint(Sketcher.Constraint("DistanceX", 7, 1, 7, 2, Q("30 mm")))
sketch13.addConstraint(Sketcher.Constraint("DistanceY", 8, 1, 8, 2, Q("15 mm")))
sketch13.addConstraint(Sketcher.Constraint("Angle", 9, Q("135 deg")))
sketch13.addConstraint(Sketcher.Constraint("DistanceY", -1, 1, 6, 3, Q("85 mm")))
sketch13.addConstraint(Sketcher.Constraint("DistanceX", 2, 2, -1, 1, Q("18 mm")))
sketch13.addConstraint(Sketcher.Constraint("DistanceY", 2, 2, 1, 2, Q("6 mm")))
sketch13.addConstraint(Sketcher.Constraint("Distance", 2, Q("6.5 mm")))
sketch13.setExpression("Constraints[20]", "Params.sketch13_radius")
sketch13.setExpression("Constraints[21]", "Params.sketch13_width")
sketch13.setExpression("Constraints[22]", "Params.sketch13_width2")
sketch13.setExpression("Constraints[23]", "Params.sketch13_width3")
sketch13.setExpression("Constraints[24]", "Params.sketch13_height")
pad7 = body.newObject("PartDesign::Pad", "Pad006")
pad7.Profile = sketch13
pad7.setExpression("Length", "Params.pad7_length")
doc.recompute()

datumplane = body.newObject("PartDesign::Plane", "DatumPlane")
datumplane.AttachmentSupport = (doc.getObject("XY_Plane"), [""])
datumplane.MapMode = "FlatFace"
datumplane.AttachmentOffset = App.Placement(V(0, 0, -15), App.Rotation())
mirrored = body.newObject("PartDesign::Mirrored", "Mirrored")
mirrored.Originals = [pad7]
mirrored.MirrorPlane = (datumplane, [""])
body.Tip = mirrored

doc.recompute()
